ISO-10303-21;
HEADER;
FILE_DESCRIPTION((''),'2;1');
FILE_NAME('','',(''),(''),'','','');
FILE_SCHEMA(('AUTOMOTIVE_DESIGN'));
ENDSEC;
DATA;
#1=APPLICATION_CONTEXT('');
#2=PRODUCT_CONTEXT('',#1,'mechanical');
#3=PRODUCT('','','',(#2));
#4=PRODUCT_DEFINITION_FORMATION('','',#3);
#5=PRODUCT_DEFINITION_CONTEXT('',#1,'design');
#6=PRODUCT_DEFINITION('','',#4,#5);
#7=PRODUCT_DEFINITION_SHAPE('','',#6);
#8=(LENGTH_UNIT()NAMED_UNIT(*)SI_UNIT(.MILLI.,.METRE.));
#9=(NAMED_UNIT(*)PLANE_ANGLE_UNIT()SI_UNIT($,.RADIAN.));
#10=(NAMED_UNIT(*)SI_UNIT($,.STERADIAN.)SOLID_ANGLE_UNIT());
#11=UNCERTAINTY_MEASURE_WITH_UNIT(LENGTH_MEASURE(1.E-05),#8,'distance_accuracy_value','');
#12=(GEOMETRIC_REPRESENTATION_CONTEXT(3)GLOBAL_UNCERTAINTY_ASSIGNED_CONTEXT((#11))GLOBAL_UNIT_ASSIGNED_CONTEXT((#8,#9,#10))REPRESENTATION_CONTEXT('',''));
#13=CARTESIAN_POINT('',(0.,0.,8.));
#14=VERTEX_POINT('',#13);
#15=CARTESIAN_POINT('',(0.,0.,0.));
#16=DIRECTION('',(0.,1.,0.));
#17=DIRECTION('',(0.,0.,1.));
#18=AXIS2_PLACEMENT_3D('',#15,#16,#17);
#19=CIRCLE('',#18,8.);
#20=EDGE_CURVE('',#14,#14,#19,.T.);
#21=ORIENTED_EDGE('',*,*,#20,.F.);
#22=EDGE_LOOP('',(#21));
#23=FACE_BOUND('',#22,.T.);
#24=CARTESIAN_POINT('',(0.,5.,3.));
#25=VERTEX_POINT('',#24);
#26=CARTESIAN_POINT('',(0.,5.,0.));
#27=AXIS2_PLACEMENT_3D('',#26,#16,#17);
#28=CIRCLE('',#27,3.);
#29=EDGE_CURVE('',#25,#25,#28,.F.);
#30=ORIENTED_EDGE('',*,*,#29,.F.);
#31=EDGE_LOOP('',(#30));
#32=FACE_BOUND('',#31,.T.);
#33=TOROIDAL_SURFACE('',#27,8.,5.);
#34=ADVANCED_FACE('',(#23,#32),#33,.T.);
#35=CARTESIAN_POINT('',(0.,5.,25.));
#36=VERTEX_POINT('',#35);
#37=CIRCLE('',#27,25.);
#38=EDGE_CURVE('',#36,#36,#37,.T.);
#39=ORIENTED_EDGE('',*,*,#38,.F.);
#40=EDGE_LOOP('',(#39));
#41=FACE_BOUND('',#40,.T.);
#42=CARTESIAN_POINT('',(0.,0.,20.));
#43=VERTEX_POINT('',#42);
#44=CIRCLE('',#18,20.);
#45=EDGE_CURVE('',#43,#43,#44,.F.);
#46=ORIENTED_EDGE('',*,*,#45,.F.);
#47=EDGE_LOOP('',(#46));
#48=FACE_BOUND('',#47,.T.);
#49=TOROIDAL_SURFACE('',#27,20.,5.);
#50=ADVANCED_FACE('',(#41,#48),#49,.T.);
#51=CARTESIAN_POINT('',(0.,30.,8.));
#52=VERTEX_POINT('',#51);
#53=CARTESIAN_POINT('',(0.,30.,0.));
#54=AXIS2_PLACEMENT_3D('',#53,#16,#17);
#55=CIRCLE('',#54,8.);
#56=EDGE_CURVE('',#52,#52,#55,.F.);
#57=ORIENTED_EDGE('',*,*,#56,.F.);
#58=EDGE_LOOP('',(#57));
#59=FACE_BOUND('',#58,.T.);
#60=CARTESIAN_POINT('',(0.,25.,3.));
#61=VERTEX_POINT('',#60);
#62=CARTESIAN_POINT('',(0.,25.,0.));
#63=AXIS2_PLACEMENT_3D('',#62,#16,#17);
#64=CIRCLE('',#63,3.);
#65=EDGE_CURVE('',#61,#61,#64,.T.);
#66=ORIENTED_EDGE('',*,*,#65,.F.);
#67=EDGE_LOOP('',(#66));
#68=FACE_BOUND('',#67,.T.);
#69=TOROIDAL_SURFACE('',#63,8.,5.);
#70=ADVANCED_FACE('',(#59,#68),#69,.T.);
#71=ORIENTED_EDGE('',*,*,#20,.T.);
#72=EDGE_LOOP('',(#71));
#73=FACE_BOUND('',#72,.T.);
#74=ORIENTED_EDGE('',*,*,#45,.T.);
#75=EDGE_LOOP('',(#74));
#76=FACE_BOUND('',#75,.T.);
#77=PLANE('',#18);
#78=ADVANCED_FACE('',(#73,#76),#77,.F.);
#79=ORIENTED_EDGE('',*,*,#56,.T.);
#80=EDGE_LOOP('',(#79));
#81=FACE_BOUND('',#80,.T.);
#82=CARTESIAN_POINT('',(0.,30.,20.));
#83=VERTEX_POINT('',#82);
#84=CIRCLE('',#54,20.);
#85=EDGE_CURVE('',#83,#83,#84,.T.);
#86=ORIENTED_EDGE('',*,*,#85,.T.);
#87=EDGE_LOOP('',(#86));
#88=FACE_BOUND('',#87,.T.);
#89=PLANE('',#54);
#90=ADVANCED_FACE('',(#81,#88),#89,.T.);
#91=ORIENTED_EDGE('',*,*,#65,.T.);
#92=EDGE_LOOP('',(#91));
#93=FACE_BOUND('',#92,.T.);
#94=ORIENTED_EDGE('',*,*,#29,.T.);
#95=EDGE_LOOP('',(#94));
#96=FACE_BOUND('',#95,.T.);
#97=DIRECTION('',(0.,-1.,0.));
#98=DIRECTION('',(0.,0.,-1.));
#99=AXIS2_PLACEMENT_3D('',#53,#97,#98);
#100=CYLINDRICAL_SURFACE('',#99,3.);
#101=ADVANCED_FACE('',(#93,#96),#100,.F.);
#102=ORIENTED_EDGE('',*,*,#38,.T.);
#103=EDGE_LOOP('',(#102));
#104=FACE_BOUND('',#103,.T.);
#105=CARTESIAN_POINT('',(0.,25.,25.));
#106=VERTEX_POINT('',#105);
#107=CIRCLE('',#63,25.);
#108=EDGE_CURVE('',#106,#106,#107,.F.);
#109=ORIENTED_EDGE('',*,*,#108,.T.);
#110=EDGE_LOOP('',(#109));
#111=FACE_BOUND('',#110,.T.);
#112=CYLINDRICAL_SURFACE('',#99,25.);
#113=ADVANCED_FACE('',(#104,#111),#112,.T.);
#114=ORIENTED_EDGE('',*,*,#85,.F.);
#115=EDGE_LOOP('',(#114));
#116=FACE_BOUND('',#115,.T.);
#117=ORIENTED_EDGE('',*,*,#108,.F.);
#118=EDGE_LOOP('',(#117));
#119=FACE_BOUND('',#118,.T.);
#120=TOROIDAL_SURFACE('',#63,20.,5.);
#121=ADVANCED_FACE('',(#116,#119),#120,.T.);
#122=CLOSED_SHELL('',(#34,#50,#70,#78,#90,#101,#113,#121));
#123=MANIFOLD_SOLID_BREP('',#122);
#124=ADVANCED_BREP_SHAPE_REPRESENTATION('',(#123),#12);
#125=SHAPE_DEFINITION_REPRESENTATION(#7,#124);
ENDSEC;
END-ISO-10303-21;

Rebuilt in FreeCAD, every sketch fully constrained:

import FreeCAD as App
import Part
import Sketcher
from FreeCAD import Vector


def edges_at(feature, points):
    """Names of the edges that pass closest to the given points."""
    edges = feature.Shape.Edges
    near = lambda p: min(range(len(edges)), key=lambda i: edges[i].distToShape(Part.Vertex(*p))[0])
    return sorted({f"Edge{near(p) + 1}" for p in points})

doc = App.newDocument("Part")
body = doc.addObject("PartDesign::Body", "Body")

# Sketch on XZ plane
sketch1 = doc.addObject("Sketcher::SketchObject", "Sketch")
body.addObject(sketch1)
sketch1.AttachmentSupport = (doc.XZ_Plane, [""])
sketch1.MapMode = "FlatFace"
sketch1.addGeometry([
    Part.Circle(Vector(0, 0, 0), Vector(0, 0, 1), 25),
    Part.Circle(Vector(0, 0, 0), Vector(0, 0, 1), 3),
], False)
sketch1.addConstraint([
    Sketcher.Constraint("Coincident", 0, 3, -1, 1),
    Sketcher.Constraint("Coincident", 1, 3, -1, 1),
    Sketcher.Constraint("Diameter", 0, 50.0),
    Sketcher.Constraint("Diameter", 1, 6.0),
])
pad1 = doc.addObject("PartDesign::Pad", "Pad")
body.addObject(pad1)
pad1.Profile = sketch1
pad1.Length = 30
pad1.Reversed = True
doc.recompute()

fillet = doc.addObject("PartDesign::Fillet", "Fillet")
body.addObject(fillet)
fillet.Base = (pad1, edges_at(pad1, [(0, 30, -25), (0, 0, -3), (0, 30, -3)]))
fillet.Radius = 5
doc.recompute()

fillet2 = doc.addObject("PartDesign::Fillet", "Fillet001")
body.addObject(fillet2)
fillet2.Base = (fillet, edges_at(fillet, [(0, 0, -25)]))
fillet2.Radius = 5

doc.recompute()
